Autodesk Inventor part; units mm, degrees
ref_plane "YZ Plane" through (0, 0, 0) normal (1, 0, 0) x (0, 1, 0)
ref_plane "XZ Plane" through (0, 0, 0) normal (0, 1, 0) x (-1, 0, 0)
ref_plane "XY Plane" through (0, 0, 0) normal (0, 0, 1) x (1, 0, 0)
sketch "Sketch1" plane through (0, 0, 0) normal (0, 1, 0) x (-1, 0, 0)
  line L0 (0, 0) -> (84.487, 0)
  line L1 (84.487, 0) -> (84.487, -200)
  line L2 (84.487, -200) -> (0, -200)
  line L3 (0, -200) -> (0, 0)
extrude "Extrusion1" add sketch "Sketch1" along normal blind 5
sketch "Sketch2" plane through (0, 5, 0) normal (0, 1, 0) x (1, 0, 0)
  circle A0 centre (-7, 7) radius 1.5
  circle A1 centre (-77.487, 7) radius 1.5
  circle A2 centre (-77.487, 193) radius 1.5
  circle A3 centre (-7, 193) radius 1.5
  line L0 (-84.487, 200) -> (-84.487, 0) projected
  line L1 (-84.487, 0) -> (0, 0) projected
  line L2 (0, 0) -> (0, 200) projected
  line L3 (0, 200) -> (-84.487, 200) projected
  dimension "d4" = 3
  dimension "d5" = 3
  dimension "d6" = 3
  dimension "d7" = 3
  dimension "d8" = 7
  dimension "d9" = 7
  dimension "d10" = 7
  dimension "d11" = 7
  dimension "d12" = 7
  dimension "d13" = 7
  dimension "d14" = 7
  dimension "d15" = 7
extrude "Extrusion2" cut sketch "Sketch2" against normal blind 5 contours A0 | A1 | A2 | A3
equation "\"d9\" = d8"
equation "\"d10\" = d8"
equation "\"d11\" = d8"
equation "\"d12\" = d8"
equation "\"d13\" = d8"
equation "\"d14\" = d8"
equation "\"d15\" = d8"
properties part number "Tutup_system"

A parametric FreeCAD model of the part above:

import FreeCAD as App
import Part
import Sketcher
from FreeCAD import Vector


def add_polygon(sketch, points):
    """Adds a closed chain of lines whose ends are joined by coincident constraints."""
    first, n = sketch.GeometryCount, len(points)
    for a, b in zip(points, points[1:] + points[:1]):
        sketch.addGeometry(Part.LineSegment(App.Vector(*a, 0), App.Vector(*b, 0)), False)
    for i in range(n):
        sketch.addConstraint(Sketcher.Constraint("Coincident", first + i, 2, first + (i + 1) % n, 1))

doc = App.newDocument("Part")
body = doc.addObject("PartDesign::Body", "Body")

sketch1 = body.newObject("Sketcher::SketchObject", "Sketch")
sketch1.AttachmentSupport = (doc.getObject("XZ_Plane"), [""])
sketch1.MapMode = "FlatFace"
add_polygon(sketch1, [(-84, 0), (0, 0), (0, -200), (-84, -200)])
sketch1.addConstraint([
    Sketcher.Constraint("Horizontal", 0),
    Sketcher.Constraint("Vertical", 1),
    Sketcher.Constraint("Horizontal", 2),
    Sketcher.Constraint("Vertical", 3),
    Sketcher.Constraint("Coincident", 0, 2, -1, 1),
    Sketcher.Constraint("DistanceY", 1, 2, 1, 1, 200.0),
    Sketcher.Constraint("DistanceX", 0, 1, 0, 2, 84.487),
])
pad1 = body.newObject("PartDesign::Pad", "Pad")
pad1.Profile = sketch1
pad1.Length = 5
pad1.Reversed = True

sketch2 = body.newObject("Sketcher::SketchObject", "Sketch001")
sketch2.AttachmentSupport = (doc.getObject("XZ_Plane"), [""])
sketch2.MapMode = "FlatFace"
sketch2.AttachmentOffset = App.Placement(Vector(0, 0, -5), App.Rotation())
sketch2.addGeometry([
    Part.Circle(Vector(-7, -7, 0), Vector(0, 0, 1), 1.5),
    Part.Circle(Vector(-77.5, -7, 0), Vector(0, 0, 1), 1.5),
    Part.Circle(Vector(-77.5, -193, 0), Vector(0, 0, 1), 1.5),
    Part.Circle(Vector(-7, -193, 0), Vector(0, 0, 1), 1.5),
], False)
sketch2.addConstraint([
    Sketcher.Constraint("Equal", 0, 1),
    Sketcher.Constraint("Equal", 1, 2),
    Sketcher.Constraint("Equal", 2, 3),
    Sketcher.Constraint("Horizontal", 0, 3, 1, 3),
    Sketcher.Constraint("Horizontal", 2, 3, 3, 3),
    Sketcher.Constraint("Vertical", 1, 3, 2, 3),
    Sketcher.Constraint("Vertical", 0, 3, 3, 3),
    Sketcher.Constraint("Diameter", 0, 3.0),
    Sketcher.Constraint("DistanceX", 0, 3, -1, 1, 7.0),
    Sketcher.Constraint("DistanceY", 0, 3, -1, 1, 7.0),
    Sketcher.Constraint("DistanceY", 2, 3, -1, 1, 193.0),
    Sketcher.Constraint("DistanceX", 1, 3, -1, 1, 77.487),
])
pocket1 = body.newObject("PartDesign::Pocket", "Pocket")
pocket1.Profile = sketch2
pocket1.Length = 5
pocket1.Reversed = True

doc.recompute()
